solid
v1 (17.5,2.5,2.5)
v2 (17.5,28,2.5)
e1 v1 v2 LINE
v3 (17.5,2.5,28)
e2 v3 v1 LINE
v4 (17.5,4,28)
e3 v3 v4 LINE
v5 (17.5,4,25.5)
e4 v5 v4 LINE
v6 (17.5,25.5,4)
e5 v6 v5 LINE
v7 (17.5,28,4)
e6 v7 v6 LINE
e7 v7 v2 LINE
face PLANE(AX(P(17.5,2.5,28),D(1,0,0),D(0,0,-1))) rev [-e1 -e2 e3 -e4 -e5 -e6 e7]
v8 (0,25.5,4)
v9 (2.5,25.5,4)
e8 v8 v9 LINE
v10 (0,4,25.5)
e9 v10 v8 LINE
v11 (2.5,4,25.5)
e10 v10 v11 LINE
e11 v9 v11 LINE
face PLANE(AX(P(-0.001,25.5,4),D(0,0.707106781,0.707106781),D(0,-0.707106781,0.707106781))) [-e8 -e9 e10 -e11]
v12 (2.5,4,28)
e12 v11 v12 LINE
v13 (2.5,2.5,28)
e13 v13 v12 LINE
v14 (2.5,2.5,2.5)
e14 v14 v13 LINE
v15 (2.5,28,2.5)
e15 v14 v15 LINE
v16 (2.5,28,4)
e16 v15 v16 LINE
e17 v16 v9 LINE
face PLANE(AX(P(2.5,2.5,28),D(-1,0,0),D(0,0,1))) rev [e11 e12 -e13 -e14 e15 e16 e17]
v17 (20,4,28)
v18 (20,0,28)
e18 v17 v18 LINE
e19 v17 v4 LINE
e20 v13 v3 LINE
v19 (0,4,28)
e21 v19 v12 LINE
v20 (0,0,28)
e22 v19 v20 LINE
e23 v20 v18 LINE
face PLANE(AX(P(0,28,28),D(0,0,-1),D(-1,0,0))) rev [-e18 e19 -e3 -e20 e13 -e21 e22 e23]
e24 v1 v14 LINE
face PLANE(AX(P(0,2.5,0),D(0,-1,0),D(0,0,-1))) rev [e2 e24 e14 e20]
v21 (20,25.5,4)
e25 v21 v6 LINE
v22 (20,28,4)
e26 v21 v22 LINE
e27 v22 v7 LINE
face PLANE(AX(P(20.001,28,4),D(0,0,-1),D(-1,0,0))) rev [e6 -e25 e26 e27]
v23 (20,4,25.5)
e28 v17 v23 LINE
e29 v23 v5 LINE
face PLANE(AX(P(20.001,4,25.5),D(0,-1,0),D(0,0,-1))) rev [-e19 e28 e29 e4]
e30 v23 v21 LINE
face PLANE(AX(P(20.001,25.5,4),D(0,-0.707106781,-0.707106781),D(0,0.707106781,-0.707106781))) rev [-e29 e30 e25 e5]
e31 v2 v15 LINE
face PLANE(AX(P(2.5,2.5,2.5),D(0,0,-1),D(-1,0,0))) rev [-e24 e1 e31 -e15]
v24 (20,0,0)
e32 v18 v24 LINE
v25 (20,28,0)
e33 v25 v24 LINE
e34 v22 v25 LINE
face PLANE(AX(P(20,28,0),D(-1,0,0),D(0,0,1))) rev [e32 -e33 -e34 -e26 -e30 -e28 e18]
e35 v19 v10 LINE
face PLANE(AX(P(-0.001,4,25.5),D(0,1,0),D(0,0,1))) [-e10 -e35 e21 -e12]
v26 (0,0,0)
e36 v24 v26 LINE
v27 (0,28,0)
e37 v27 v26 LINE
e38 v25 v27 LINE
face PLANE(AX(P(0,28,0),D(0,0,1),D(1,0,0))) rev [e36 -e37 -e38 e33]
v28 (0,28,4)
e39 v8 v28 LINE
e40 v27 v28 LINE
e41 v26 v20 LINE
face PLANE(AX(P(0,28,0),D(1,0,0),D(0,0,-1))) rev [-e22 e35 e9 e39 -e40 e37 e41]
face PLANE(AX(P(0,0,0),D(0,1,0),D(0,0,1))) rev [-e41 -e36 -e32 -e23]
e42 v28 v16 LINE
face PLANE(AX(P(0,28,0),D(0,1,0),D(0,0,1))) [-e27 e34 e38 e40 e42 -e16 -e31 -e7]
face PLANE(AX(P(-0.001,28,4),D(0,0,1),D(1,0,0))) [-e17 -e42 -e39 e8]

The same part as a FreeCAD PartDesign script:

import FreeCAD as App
import Part
import Sketcher
from FreeCAD import Vector

doc = App.newDocument("Part")
body = doc.addObject("PartDesign::Body", "Body")

sketch1 = body.newObject("Sketcher::SketchObject", "Sketch")
sketch1.AttachmentSupport = (doc.getObject("XZ_Plane"), [""])
sketch1.MapMode = "FlatFace"
sketch1.addGeometry([
    Part.LineSegment(Vector(0, 0, 0), Vector(0, 28, 0)),
    Part.LineSegment(Vector(0, 28, 0), Vector(20, 28, 0)),
    Part.LineSegment(Vector(20, 28, 0), Vector(20, 0, 0)),
    Part.LineSegment(Vector(20, 0, 0), Vector(0, 0, 0)),
], False)
sketch1.addConstraint([
    Sketcher.Constraint("Coincident", 0, 2, 1, 1),
    Sketcher.Constraint("Coincident", 1, 2, 2, 1),
    Sketcher.Constraint("Coincident", 2, 2, 3, 1),
    Sketcher.Constraint("Coincident", 3, 2, 0, 1),
    Sketcher.Constraint("Vertical", 0),
    Sketcher.Constraint("Horizontal", 1),
    Sketcher.Constraint("Vertical", 2),
    Sketcher.Constraint("Horizontal", 3),
    Sketcher.Constraint("Coincident", 3, 2, -1, 1),
    Sketcher.Constraint("DistanceX", 1, 1, 1, 2, 20.0),
    Sketcher.Constraint("DistanceY", 0, 1, 0, 2, 28.0),
])
pad1 = body.newObject("PartDesign::Pad", "Pad")
pad1.Profile = sketch1
pad1.Length = 28
pad1.Reversed = True

sketch2 = body.newObject("Sketcher::SketchObject", "Sketch001")
sketch2.AttachmentSupport = (doc.getObject("XZ_Plane"), [""])
sketch2.MapMode = "FlatFace"
sketch2.AttachmentOffset = App.Placement(Vector(0, 0, -28), App.Rotation())
sketch2.addGeometry([
    Part.LineSegment(Vector(2, 2, 0), Vector(2, 28, 0)),
    Part.LineSegment(Vector(2, 28, 0), Vector(18, 28, 0)),
    Part.LineSegment(Vector(18, 28, 0), Vector(18, 2, 0)),
    Part.LineSegment(Vector(18, 2, 0), Vector(2, 2, 0)),
], False)
sketch2.addConstraint([
    Sketcher.Constraint("Coincident", 0, 2, 1, 1),
    Sketcher.Constraint("Coincident", 1, 2, 2, 1),
    Sketcher.Constraint("Coincident", 2, 2, 3, 1),
    Sketcher.Constraint("Coincident", 3, 2, 0, 1),
    Sketcher.Constraint("Vertical", 0),
    Sketcher.Constraint("Horizontal", 1),
    Sketcher.Constraint("Vertical", 2),
    Sketcher.Constraint("Horizontal", 3),
    Sketcher.Constraint("DistanceX", 1, 1, 1, 2, 15.0),
    Sketcher.Constraint("DistanceY", 0, 1, 0, 2, 25.5),
    Sketcher.Constraint("DistanceY", -1, 1, 0, 2, 28.0),
    Sketcher.Constraint("DistanceX", -1, 1, 0, 2, 2.5),
])
pocket1 = body.newObject("PartDesign::Pocket", "Pocket")
pocket1.Profile = sketch2
pocket1.Length = 25.5
pocket1.Reversed = True

sketch3 = body.newObject("Sketcher::SketchObject", "Sketch002")
sketch3.AttachmentSupport = (doc.getObject("YZ_Plane"), [""])
sketch3.MapMode = "FlatFace"
sketch3.AttachmentOffset = App.Placement(Vector(0, 0, 10), App.Rotation())
sketch3.addGeometry([
    Part.LineSegment(Vector(28, 4, 0), Vector(25.5, 4, 0)),
    Part.LineSegment(Vector(25.5, 4, 0), Vector(4, 25.5, 0)),
    Part.LineSegment(Vector(4, 25.5, 0), Vector(4, 28, 0)),
    Part.LineSegment(Vector(4, 28, 0), Vector(28, 28, 0)),
    Part.LineSegment(Vector(28, 28, 0), Vector(28, 4, 0)),
], False)
sketch3.addConstraint([
    Sketcher.Constraint("Coincident", 0, 2, 1, 1),
    Sketcher.Constraint("Coincident", 1, 2, 2, 1),
    Sketcher.Constraint("Coincident", 2, 2, 3, 1),
    Sketcher.Constraint("Coincident", 3, 2, 4, 1),
    Sketcher.Constraint("Coincident", 4, 2, 0, 1),
    Sketcher.Constraint("Horizontal", 0),
    Sketcher.Constraint("Vertical", 2),
    Sketcher.Constraint("Horizontal", 3),
    Sketcher.Constraint("Vertical", 4),
    Sketcher.Constraint("Equal", 0, 2),
    Sketcher.Constraint("Equal", 3, 4),
    Sketcher.Constraint("DistanceX", 3, 1, 3, 2, 24.0),
    Sketcher.Constraint("DistanceX", 0, 2, 0, 1, 2.5),
    Sketcher.Constraint("DistanceY", -1, 1, 0, 2, 4.0),
    Sketcher.Constraint("DistanceX", -1, 1, 1, 2, 4.0),
])
pocket2 = body.newObject("PartDesign::Pocket", "Pocket001")
pocket2.Profile = sketch3
pocket2.Length = 10
pocket2.Reversed = True

sketch4 = body.newObject("Sketcher::SketchObject", "Sketch003")
sketch4.AttachmentSupport = (doc.getObject("YZ_Plane"), [""])
sketch4.MapMode = "FlatFace"
sketch4.AttachmentOffset = App.Placement(Vector(0, 0, 10), App.Rotation())
sketch4.addGeometry([
    Part.LineSegment(Vector(28, 4, 0), Vector(25.5, 4, 0)),
    Part.LineSegment(Vector(25.5, 4, 0), Vector(4, 25.5, 0)),
    Part.LineSegment(Vector(4, 25.5, 0), Vector(4, 28, 0)),
    Part.LineSegment(Vector(4, 28, 0), Vector(28, 28, 0)),
    Part.LineSegment(Vector(28, 28, 0), Vector(28, 4, 0)),
], False)
sketch4.addConstraint([
    Sketcher.Constraint("Coincident", 0, 2, 1, 1),
    Sketcher.Constraint("Coincident", 1, 2, 2, 1),
    Sketcher.Constraint("Coincident", 2, 2, 3, 1),
    Sketcher.Constraint("Coincident", 3, 2, 4, 1),
    Sketcher.Constraint("Coincident", 4, 2, 0, 1),
    Sketcher.Constraint("Horizontal", 0),
    Sketcher.Constraint("Vertical", 2),
    Sketcher.Constraint("Horizontal", 3),
    Sketcher.Constraint("Vertical", 4),
    Sketcher.Constraint("Equal", 0, 2),
    Sketcher.Constraint("Equal", 3, 4),
    Sketcher.Constraint("DistanceX", 3, 1, 3, 2, 24.0),
    Sketcher.Constraint("DistanceX", 0, 2, 0, 1, 2.5),
    Sketcher.Constraint("DistanceY", -1, 1, 0, 2, 4.0),
    Sketcher.Constraint("DistanceX", -1, 1, 1, 2, 4.0),
])
pocket3 = body.newObject("PartDesign::Pocket", "Pocket002")
pocket3.Profile = sketch4
pocket3.Length = 10

doc.recompute()
